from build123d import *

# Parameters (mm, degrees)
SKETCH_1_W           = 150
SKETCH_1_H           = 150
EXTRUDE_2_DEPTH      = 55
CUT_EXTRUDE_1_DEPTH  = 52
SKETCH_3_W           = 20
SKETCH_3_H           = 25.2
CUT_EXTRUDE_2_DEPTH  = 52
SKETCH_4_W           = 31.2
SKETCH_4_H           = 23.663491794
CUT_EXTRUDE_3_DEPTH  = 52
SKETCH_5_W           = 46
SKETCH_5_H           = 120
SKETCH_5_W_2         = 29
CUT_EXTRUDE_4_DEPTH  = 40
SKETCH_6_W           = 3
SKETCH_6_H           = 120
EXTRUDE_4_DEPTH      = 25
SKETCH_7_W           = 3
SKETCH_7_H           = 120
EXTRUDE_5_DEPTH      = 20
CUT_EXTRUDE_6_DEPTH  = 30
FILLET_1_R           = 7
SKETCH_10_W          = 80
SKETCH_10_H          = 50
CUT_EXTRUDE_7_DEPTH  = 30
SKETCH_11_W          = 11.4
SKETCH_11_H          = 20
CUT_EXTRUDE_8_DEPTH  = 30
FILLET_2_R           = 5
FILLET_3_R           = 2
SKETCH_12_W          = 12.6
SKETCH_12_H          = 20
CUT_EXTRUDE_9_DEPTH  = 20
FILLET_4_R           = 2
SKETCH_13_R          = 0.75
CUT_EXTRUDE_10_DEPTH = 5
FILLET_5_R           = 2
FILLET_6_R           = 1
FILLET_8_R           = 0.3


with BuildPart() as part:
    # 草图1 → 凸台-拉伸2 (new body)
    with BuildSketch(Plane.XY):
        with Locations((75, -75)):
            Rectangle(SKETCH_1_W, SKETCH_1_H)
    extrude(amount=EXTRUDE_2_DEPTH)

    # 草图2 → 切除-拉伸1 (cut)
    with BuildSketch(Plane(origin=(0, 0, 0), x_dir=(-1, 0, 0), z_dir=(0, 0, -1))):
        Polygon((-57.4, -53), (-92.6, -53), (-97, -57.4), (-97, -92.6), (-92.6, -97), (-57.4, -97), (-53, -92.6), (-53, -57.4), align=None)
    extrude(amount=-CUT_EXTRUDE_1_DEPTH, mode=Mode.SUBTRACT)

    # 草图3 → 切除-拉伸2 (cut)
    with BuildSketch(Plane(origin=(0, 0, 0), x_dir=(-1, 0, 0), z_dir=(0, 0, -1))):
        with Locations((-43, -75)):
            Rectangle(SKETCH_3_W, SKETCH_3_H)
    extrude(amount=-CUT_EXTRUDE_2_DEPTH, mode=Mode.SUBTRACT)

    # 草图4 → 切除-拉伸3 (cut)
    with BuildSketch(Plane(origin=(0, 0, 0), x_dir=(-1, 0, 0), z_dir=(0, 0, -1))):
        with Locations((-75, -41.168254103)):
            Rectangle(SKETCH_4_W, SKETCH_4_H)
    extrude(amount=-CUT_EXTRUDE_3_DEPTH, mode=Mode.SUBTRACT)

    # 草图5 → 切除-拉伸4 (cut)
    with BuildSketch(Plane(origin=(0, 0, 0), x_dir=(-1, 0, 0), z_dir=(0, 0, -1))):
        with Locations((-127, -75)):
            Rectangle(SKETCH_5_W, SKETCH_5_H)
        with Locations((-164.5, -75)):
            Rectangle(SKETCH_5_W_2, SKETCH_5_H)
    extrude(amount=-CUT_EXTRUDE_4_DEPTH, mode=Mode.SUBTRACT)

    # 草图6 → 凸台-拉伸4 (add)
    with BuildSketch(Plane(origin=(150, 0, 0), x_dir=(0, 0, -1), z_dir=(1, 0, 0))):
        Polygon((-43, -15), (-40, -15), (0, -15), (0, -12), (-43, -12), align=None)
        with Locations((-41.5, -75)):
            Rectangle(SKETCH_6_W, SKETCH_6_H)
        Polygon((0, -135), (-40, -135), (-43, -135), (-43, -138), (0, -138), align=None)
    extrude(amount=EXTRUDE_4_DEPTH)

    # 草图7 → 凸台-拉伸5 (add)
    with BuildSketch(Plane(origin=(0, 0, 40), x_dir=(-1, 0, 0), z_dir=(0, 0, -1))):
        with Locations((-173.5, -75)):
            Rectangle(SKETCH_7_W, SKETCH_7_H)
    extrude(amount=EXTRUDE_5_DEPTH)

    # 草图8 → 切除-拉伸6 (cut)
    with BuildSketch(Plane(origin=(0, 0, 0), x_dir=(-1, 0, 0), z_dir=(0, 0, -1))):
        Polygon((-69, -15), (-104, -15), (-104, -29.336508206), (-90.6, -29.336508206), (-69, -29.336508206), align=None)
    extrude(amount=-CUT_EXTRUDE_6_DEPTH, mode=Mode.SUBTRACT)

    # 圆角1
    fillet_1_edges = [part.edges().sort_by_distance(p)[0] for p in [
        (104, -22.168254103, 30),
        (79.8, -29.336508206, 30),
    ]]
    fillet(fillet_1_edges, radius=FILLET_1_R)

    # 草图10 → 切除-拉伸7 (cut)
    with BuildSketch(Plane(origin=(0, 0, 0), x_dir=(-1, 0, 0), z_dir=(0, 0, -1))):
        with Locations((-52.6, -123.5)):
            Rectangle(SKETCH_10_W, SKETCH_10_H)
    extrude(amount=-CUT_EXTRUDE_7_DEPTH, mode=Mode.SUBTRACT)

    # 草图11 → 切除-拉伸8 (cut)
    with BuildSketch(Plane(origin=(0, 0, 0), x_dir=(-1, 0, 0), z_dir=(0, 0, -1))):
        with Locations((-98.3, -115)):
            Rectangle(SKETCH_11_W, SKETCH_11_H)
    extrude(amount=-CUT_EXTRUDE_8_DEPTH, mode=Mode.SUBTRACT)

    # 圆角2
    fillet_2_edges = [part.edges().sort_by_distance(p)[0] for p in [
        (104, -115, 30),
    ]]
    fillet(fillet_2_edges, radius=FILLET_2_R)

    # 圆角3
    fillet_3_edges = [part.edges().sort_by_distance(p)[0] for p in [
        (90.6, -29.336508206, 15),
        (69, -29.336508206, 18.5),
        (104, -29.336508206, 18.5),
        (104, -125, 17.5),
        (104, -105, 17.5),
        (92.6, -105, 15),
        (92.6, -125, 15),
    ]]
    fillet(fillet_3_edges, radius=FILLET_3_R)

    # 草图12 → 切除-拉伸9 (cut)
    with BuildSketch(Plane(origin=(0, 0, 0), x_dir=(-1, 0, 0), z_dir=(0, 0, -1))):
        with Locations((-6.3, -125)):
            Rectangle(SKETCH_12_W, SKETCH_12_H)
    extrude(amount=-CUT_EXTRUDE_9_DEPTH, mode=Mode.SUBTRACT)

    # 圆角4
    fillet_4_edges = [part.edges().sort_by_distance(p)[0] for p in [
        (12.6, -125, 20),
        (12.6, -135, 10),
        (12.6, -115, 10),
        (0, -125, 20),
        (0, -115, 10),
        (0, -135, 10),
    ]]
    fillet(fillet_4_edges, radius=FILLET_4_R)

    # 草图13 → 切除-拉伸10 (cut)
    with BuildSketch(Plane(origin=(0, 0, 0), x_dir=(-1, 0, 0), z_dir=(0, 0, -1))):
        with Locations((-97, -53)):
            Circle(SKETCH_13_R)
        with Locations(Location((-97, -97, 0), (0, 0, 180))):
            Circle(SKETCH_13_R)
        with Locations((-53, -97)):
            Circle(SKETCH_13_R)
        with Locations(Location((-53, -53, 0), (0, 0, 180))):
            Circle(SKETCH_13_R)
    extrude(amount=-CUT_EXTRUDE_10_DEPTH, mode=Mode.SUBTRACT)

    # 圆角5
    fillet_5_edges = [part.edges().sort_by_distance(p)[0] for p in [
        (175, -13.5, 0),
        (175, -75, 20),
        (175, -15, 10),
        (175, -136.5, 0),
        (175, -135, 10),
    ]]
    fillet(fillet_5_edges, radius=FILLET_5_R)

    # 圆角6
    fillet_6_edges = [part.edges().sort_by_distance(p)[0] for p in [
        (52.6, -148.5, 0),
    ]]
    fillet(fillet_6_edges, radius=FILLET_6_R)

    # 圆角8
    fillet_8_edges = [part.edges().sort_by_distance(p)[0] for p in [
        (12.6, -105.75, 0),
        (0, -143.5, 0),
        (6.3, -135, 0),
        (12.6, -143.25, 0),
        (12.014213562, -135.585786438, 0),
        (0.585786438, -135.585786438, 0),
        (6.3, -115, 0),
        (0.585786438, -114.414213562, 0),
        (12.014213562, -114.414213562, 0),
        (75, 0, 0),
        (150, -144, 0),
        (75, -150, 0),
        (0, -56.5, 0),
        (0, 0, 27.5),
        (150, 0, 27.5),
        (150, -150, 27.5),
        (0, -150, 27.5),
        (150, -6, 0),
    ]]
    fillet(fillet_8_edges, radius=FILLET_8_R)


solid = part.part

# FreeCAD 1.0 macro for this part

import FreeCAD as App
import Part
import Sketcher
from FreeCAD import Vector


def edges_at(feature, points):
    """Names of the edges that pass closest to the given points."""
    edges = feature.Shape.Edges
    near = lambda p: min(range(len(edges)), key=lambda i: edges[i].distToShape(Part.Vertex(*p))[0])
    return sorted({f"Edge{near(p) + 1}" for p in points})

doc = App.newDocument("Part")
body = doc.addObject("PartDesign::Body", "Body")

# Sketch on XY plane
sketch1 = doc.addObject("Sketcher::SketchObject", "Sketch")
body.addObject(sketch1)
sketch1.AttachmentSupport = (doc.XY_Plane, [""])
sketch1.MapMode = "FlatFace"
sketch1.addGeometry(Part.LineSegment(Vector(0, 0, 0), Vector(0, -150, 0)), False)
sketch1.addGeometry(Part.LineSegment(Vector(0, -150, 0), Vector(150, -150, 0)), False)
sketch1.addGeometry(Part.LineSegment(Vector(150, -150, 0), Vector(150, 0, 0)), False)
sketch1.addGeometry(Part.LineSegment(Vector(150, 0, 0), Vector(0, 0, 0)), False)
sketch1.addConstraint(Sketcher.Constraint("Coincident", 0, 2, 1, 1))
sketch1.addConstraint(Sketcher.Constraint("Coincident", 1, 2, 2, 1))
sketch1.addConstraint(Sketcher.Constraint("Coincident", 2, 2, 3, 1))
sketch1.addConstraint(Sketcher.Constraint("Coincident", 3, 2, 0, 1))
sketch1.addConstraint(Sketcher.Constraint("Vertical", 0))
sketch1.addConstraint(Sketcher.Constraint("Horizontal", 1))
sketch1.addConstraint(Sketcher.Constraint("Vertical", 2))
sketch1.addConstraint(Sketcher.Constraint("Horizontal", 3))
sketch1.addConstraint(Sketcher.Constraint("Coincident", 3, 2, -1, 1))
sketch1.addConstraint(Sketcher.Constraint("Equal", 3, 0))
sketch1.addConstraint(Sketcher.Constraint("DistanceX", 1, 1, 1, 2, 150.0))
pad1 = doc.addObject("PartDesign::Pad", "Pad")
body.addObject(pad1)
pad1.Profile = sketch1
pad1.Length = 55

# Sketch on XY plane
sketch2 = doc.addObject("Sketcher::SketchObject", "Sketch001")
body.addObject(sketch2)
sketch2.AttachmentSupport = (doc.XY_Plane, [""])
sketch2.MapMode = "FlatFace"
sketch2.addGeometry(Part.LineSegment(Vector(57, -53, 0), Vector(93, -53, 0)), False)
sketch2.addGeometry(Part.LineSegment(Vector(93, -53, 0), Vector(97, -57, 0)), False)
sketch2.addGeometry(Part.LineSegment(Vector(97, -57, 0), Vector(97, -93, 0)), False)
sketch2.addGeometry(Part.LineSegment(Vector(97, -93, 0), Vector(93, -97, 0)), False)
sketch2.addGeometry(Part.LineSegment(Vector(93, -97, 0), Vector(57, -97, 0)), False)
sketch2.addGeometry(Part.LineSegment(Vector(57, -97, 0), Vector(53, -93, 0)), False)
sketch2.addGeometry(Part.LineSegment(Vector(53, -93, 0), Vector(53, -57, 0)), False)
sketch2.addGeometry(Part.LineSegment(Vector(53, -57, 0), Vector(57, -53, 0)), False)
sketch2.addConstraint(Sketcher.Constraint("Coincident", 0, 2, 1, 1))
sketch2.addConstraint(Sketcher.Constraint("Coincident", 1, 2, 2, 1))
sketch2.addConstraint(Sketcher.Constraint("Coincident", 2, 2, 3, 1))
sketch2.addConstraint(Sketcher.Constraint("Coincident", 3, 2, 4, 1))
sketch2.addConstraint(Sketcher.Constraint("Coincident", 4, 2, 5, 1))
sketch2.addConstraint(Sketcher.Constraint("Coincident", 5, 2, 6, 1))
sketch2.addConstraint(Sketcher.Constraint("Coincident", 6, 2, 7, 1))
sketch2.addConstraint(Sketcher.Constraint("Coincident", 7, 2, 0, 1))
sketch2.addConstraint(Sketcher.Constraint("Horizontal", 0))
sketch2.addConstraint(Sketcher.Constraint("Vertical", 2))
sketch2.addConstraint(Sketcher.Constraint("Horizontal", 4))
sketch2.addConstraint(Sketcher.Constraint("Vertical", 6))
sketch2.addConstraint(Sketcher.Constraint("Perpendicular", 1, 3))
sketch2.addConstraint(Sketcher.Constraint("Perpendicular", 3, 5))
sketch2.addConstraint(Sketcher.Constraint("Perpendicular", 5, 7))
sketch2.addConstraint(Sketcher.Constraint("Horizontal", 2, 2, 5, 2))
sketch2.addConstraint(Sketcher.Constraint("Horizontal", 1, 2, 6, 2))
sketch2.addConstraint(Sketcher.Constraint("Vertical", 0, 2, 3, 2))
sketch2.addConstraint(Sketcher.Constraint("Vertical", 4, 2, 7, 2))
sketch2.addConstraint(Sketcher.Constraint("Equal", 4, 2))
sketch2.addConstraint(Sketcher.Constraint("DistanceX", 0, 1, 0, 2, 35.2))
sketch2.addConstraint(Sketcher.Constraint("DistanceY", 0, 2, -1, 1, 53.0))
sketch2.addConstraint(Sketcher.Constraint("DistanceX", -1, 1, 1, 2, 97.0))
sketch2.addConstraint(Sketcher.Constraint("DistanceY", 3, 2, -1, 1, 97.0))
pocket1 = doc.addObject("PartDesign::Pocket", "Pocket")
body.addObject(pocket1)
pocket1.Profile = sketch2
pocket1.Length = 52
pocket1.Reversed = True

# Sketch on XY plane
sketch3 = doc.addObject("Sketcher::SketchObject", "Sketch002")
body.addObject(sketch3)
sketch3.AttachmentSupport = (doc.XY_Plane, [""])
sketch3.MapMode = "FlatFace"
sketch3.addGeometry(Part.LineSegment(Vector(53, -62, 0), Vector(53, -88, 0)), False)
sketch3.addGeometry(Part.LineSegment(Vector(53, -88, 0), Vector(33, -88, 0)), False)
sketch3.addGeometry(Part.LineSegment(Vector(33, -88, 0), Vector(33, -62, 0)), False)
sketch3.addGeometry(Part.LineSegment(Vector(33, -62, 0), Vector(53, -62, 0)), False)
sketch3.addConstraint(Sketcher.Constraint("Coincident", 0, 2, 1, 1))
sketch3.addConstraint(Sketcher.Constraint("Coincident", 1, 2, 2, 1))
sketch3.addConstraint(Sketcher.Constraint("Coincident", 2, 2, 3, 1))
sketch3.addConstraint(Sketcher.Constraint("Coincident", 3, 2, 0, 1))
sketch3.addConstraint(Sketcher.Constraint("Vertical", 0))
sketch3.addConstraint(Sketcher.Constraint("Horizontal", 1))
sketch3.addConstraint(Sketcher.Constraint("Vertical", 2))
sketch3.addConstraint(Sketcher.Constraint("Horizontal", 3))
sketch3.addConstraint(Sketcher.Constraint("DistanceX", 1, 2, 1, 1, 20.0))
sketch3.addConstraint(Sketcher.Constraint("DistanceY", 0, 2, 0, 1, 25.2))
sketch3.addConstraint(Sketcher.Constraint("DistanceX", -1, 1, 0, 2, 53.0))
sketch3.addConstraint(Sketcher.Constraint("DistanceY", 0, 2, -1, 1, 87.6))
pocket2 = doc.addObject("PartDesign::Pocket", "Pocket001")
body.addObject(pocket2)
pocket2.Profile = sketch3
pocket2.Length = 52
pocket2.Reversed = True

# Sketch on XY plane
sketch4 = doc.addObject("Sketcher::SketchObject", "Sketch003")
body.addObject(sketch4)
sketch4.AttachmentSupport = (doc.XY_Plane, [""])
sketch4.MapMode = "FlatFace"
sketch4.addGeometry(Part.LineSegment(Vector(91, -29, 0), Vector(91, -53, 0)), False)
sketch4.addGeometry(Part.LineSegment(Vector(91, -53, 0), Vector(59, -53, 0)), False)
sketch4.addGeometry(Part.LineSegment(Vector(59, -53, 0), Vector(59, -29, 0)), False)
sketch4.addGeometry(Part.LineSegment(Vector(59, -29, 0), Vector(91, -29, 0)), False)
sketch4.addConstraint(Sketcher.Constraint("Coincident", 0, 2, 1, 1))
sketch4.addConstraint(Sketcher.Constraint("Coincident", 1, 2, 2, 1))
sketch4.addConstraint(Sketcher.Constraint("Coincident", 2, 2, 3, 1))
sketch4.addConstraint(Sketcher.Constraint("Coincident", 3, 2, 0, 1))
sketch4.addConstraint(Sketcher.Constraint("Vertical", 0))
sketch4.addConstraint(Sketcher.Constraint("Horizontal", 1))
sketch4.addConstraint(Sketcher.Constraint("Vertical", 2))
sketch4.addConstraint(Sketcher.Constraint("Horizontal", 3))
sketch4.addConstraint(Sketcher.Constraint("DistanceX", 1, 2, 1, 1, 31.2))
sketch4.addConstraint(Sketcher.Constraint("DistanceY", 0, 2, -1, 1, 53.0))
sketch4.addConstraint(Sketcher.Constraint("DistanceX", -1, 1, 0, 2, 90.6))
sketch4.addConstraint(Sketcher.Constraint("DistanceY", 0, 2, 0, 1, 23.663492))
pocket3 = doc.addObject("PartDesign::Pocket", "Pocket002")
body.addObject(pocket3)
pocket3.Profile = sketch4
pocket3.Length = 52
pocket3.Reversed = True

# Sketch on XY plane
sketch5 = doc.addObject("Sketcher::SketchObject", "Sketch004")
body.addObject(sketch5)
sketch5.AttachmentSupport = (doc.XY_Plane, [""])
sketch5.MapMode = "FlatFace"
sketch5.addGeometry(Part.LineSegment(Vector(104, -135, 0), Vector(104, -15, 0)), False)
sketch5.addGeometry(Part.LineSegment(Vector(104, -15, 0), Vector(179, -15, 0)), False)
sketch5.addGeometry(Part.LineSegment(Vector(179, -15, 0), Vector(179, -135, 0)), False)
sketch5.addGeometry(Part.LineSegment(Vector(179, -135, 0), Vector(104, -135, 0)), False)
sketch5.addConstraint(Sketcher.Constraint("Coincident", 0, 2, 1, 1))
sketch5.addConstraint(Sketcher.Constraint("Coincident", 1, 2, 2, 1))
sketch5.addConstraint(Sketcher.Constraint("Coincident", 2, 2, 3, 1))
sketch5.addConstraint(Sketcher.Constraint("Coincident", 3, 2, 0, 1))
sketch5.addConstraint(Sketcher.Constraint("Vertical", 0))
sketch5.addConstraint(Sketcher.Constraint("Horizontal", 1))
sketch5.addConstraint(Sketcher.Constraint("Vertical", 2))
sketch5.addConstraint(Sketcher.Constraint("Horizontal", 3))
sketch5.addConstraint(Sketcher.Constraint("DistanceX", 1, 1, 1, 2, 75.0))
sketch5.addConstraint(Sketcher.Constraint("DistanceY", 0, 1, 0, 2, 120.0))
sketch5.addConstraint(Sketcher.Constraint("DistanceX", -1, 1, 0, 2, 104.0))
sketch5.addConstraint(Sketcher.Constraint("DistanceY", 0, 2, -1, 1, 15.0))
pocket4 = doc.addObject("PartDesign::Pocket", "Pocket003")
body.addObject(pocket4)
pocket4.Profile = sketch5
pocket4.Length = 40
pocket4.Reversed = True

# Sketch on YZ plane
sketch6 = doc.addObject("Sketcher::SketchObject", "Sketch005")
body.addObject(sketch6)
sketch6.AttachmentSupport = (doc.YZ_Plane, [""])
sketch6.MapMode = "FlatFace"
sketch6.AttachmentOffset = App.Placement(Vector(0, 0, 150), App.Rotation())
sketch6.addGeometry(Part.LineSegment(Vector(-15, 40, 0), Vector(-15, 0, 0)), False)
sketch6.addGeometry(Part.LineSegment(Vector(-15, 0, 0), Vector(-12, 0, 0)), False)
sketch6.addGeometry(Part.LineSegment(Vector(-12, 0, 0), Vector(-12, 43, 0)), False)
sketch6.addGeometry(Part.LineSegment(Vector(-12, 43, 0), Vector(-138, 43, 0)), False)
sketch6.addGeometry(Part.LineSegment(Vector(-138, 43, 0), Vector(-138, 0, 0)), False)
sketch6.addGeometry(Part.LineSegment(Vector(-138, 0, 0), Vector(-135, 0, 0)), False)
sketch6.addGeometry(Part.LineSegment(Vector(-135, 0, 0), Vector(-135, 40, 0)), False)
sketch6.addGeometry(Part.LineSegment(Vector(-135, 40, 0), Vector(-15, 40, 0)), False)
sketch6.addConstraint(Sketcher.Constraint("Coincident", 0, 2, 1, 1))
sketch6.addConstraint(Sketcher.Constraint("Coincident", 1, 2, 2, 1))
sketch6.addConstraint(Sketcher.Constraint("Coincident", 2, 2, 3, 1))
sketch6.addConstraint(Sketcher.Constraint("Coincident", 3, 2, 4, 1))
sketch6.addConstraint(Sketcher.Constraint("Coincident", 4, 2, 5, 1))
sketch6.addConstraint(Sketcher.Constraint("Coincident", 5, 2, 6, 1))
sketch6.addConstraint(Sketcher.Constraint("Coincident", 6, 2, 7, 1))
sketch6.addConstraint(Sketcher.Constraint("Coincident", 7, 2, 0, 1))
sketch6.addConstraint(Sketcher.Constraint("Vertical", 0))
sketch6.addConstraint(Sketcher.Constraint("Horizontal", 1))
sketch6.addConstraint(Sketcher.Constraint("Vertical", 2))
sketch6.addConstraint(Sketcher.Constraint("Horizontal", 3))
sketch6.addConstraint(Sketcher.Constraint("Vertical", 4))
sketch6.addConstraint(Sketcher.Constraint("Horizontal", 5))
sketch6.addConstraint(Sketcher.Constraint("Vertical", 6))
sketch6.addConstraint(Sketcher.Constraint("Horizontal", 7))
sketch6.addConstraint(Sketcher.Constraint("PointOnObject", 0, 2, -1))
sketch6.addConstraint(Sketcher.Constraint("PointOnObject", 4, 2, -1))
sketch6.addConstraint(Sketcher.Constraint("Equal", 1, 5))
sketch6.addConstraint(Sketcher.Constraint("DistanceX", 1, 1, 1, 2, 3.0))
sketch6.addConstraint(Sketcher.Constraint("DistanceX", 3, 2, 3, 1, 126.0))
sketch6.addConstraint(Sketcher.Constraint("DistanceY", 0, 2, 0, 1, 40.0))
sketch6.addConstraint(Sketcher.Constraint("DistanceY", 2, 1, 2, 2, 43.0))
sketch6.addConstraint(Sketcher.Constraint("DistanceX", 0, 2, -1, 1, 15.0))
pad2 = doc.addObject("PartDesign::Pad", "Pad001")
body.addObject(pad2)
pad2.Profile = sketch6
pad2.Length = 25

# Sketch on XY plane
sketch7 = doc.addObject("Sketcher::SketchObject", "Sketch006")
body.addObject(sketch7)
sketch7.AttachmentSupport = (doc.XY_Plane, [""])
sketch7.MapMode = "FlatFace"
sketch7.AttachmentOffset = App.Placement(Vector(0, 0, 40), App.Rotation())
sketch7.addGeometry(Part.LineSegment(Vector(175, -15, 0), Vector(175, -135, 0)), False)
sketch7.addGeometry(Part.LineSegment(Vector(175, -135, 0), Vector(172, -135, 0)), False)
sketch7.addGeometry(Part.LineSegment(Vector(172, -135, 0), Vector(172, -15, 0)), False)
sketch7.addGeometry(Part.LineSegment(Vector(172, -15, 0), Vector(175, -15, 0)), False)
sketch7.addConstraint(Sketcher.Constraint("Coincident", 0, 2, 1, 1))
sketch7.addConstraint(Sketcher.Constraint("Coincident", 1, 2, 2, 1))
sketch7.addConstraint(Sketcher.Constraint("Coincident", 2, 2, 3, 1))
sketch7.addConstraint(Sketcher.Constraint("Coincident", 3, 2, 0, 1))
sketch7.addConstraint(Sketcher.Constraint("Vertical", 0))
sketch7.addConstraint(Sketcher.Constraint("Horizontal", 1))
sketch7.addConstraint(Sketcher.Constraint("Vertical", 2))
sketch7.addConstraint(Sketcher.Constraint("Horizontal", 3))
sketch7.addConstraint(Sketcher.Constraint("DistanceX", 1, 2, 1, 1, 3.0))
sketch7.addConstraint(Sketcher.Constraint("DistanceY", 0, 2, 0, 1, 120.0))
sketch7.addConstraint(Sketcher.Constraint("DistanceX", -1, 1, 0, 2, 175.0))
sketch7.addConstraint(Sketcher.Constraint("DistanceY", 0, 2, -1, 1, 135.0))
pad3 = doc.addObject("PartDesign::Pad", "Pad002")
body.addObject(pad3)
pad3.Profile = sketch7
pad3.Length = 20
pad3.Reversed = True

# Sketch on XY plane
sketch8 = doc.addObject("Sketcher::SketchObject", "Sketch007")
body.addObject(sketch8)
sketch8.AttachmentSupport = (doc.XY_Plane, [""])
sketch8.MapMode = "FlatFace"
sketch8.addGeometry(Part.LineSegment(Vector(69, -15, 0), Vector(104, -15, 0)), False)
sketch8.addGeometry(Part.LineSegment(Vector(104, -15, 0), Vector(104, -29, 0)), False)
sketch8.addGeometry(Part.LineSegment(Vector(104, -29, 0), Vector(69, -29, 0)), False)
sketch8.addGeometry(Part.LineSegment(Vector(69, -29, 0), Vector(69, -15, 0)), False)
sketch8.addConstraint(Sketcher.Constraint("Coincident", 0, 2, 1, 1))
sketch8.addConstraint(Sketcher.Constraint("Coincident", 1, 2, 2, 1))
sketch8.addConstraint(Sketcher.Constraint("Coincident", 2, 2, 3, 1))
sketch8.addConstraint(Sketcher.Constraint("Coincident", 3, 2, 0, 1))
sketch8.addConstraint(Sketcher.Constraint("Horizontal", 0))
sketch8.addConstraint(Sketcher.Constraint("Vertical", 1))
sketch8.addConstraint(Sketcher.Constraint("Horizontal", 2))
sketch8.addConstraint(Sketcher.Constraint("Vertical", 3))
sketch8.addConstraint(Sketcher.Constraint("DistanceX", 0, 1, 0, 2, 35.0))
sketch8.addConstraint(Sketcher.Constraint("DistanceX", -1, 1, 0, 2, 104.0))
sketch8.addConstraint(Sketcher.Constraint("DistanceY", 0, 2, -1, 1, 15.0))
sketch8.addConstraint(Sketcher.Constraint("DistanceY", 1, 2, 1, 1, 14.336508))
pocket5 = doc.addObject("PartDesign::Pocket", "Pocket004")
body.addObject(pocket5)
pocket5.Profile = sketch8
pocket5.Length = 30
pocket5.Reversed = True
doc.recompute()

fillet = doc.addObject("PartDesign::Fillet", "Fillet")
body.addObject(fillet)
fillet.Base = (pocket5, edges_at(pocket5, [(104, -22.168, 30), (79.8, -29.337, 30)]))
fillet.Radius = 7

# Sketch on XY plane
sketch9 = doc.addObject("Sketcher::SketchObject", "Sketch008")
body.addObject(sketch9)
sketch9.AttachmentSupport = (doc.XY_Plane, [""])
sketch9.MapMode = "FlatFace"
sketch9.addGeometry(Part.LineSegment(Vector(93, -98, 0), Vector(93, -148, 0)), False)
sketch9.addGeometry(Part.LineSegment(Vector(93, -148, 0), Vector(13, -148, 0)), False)
sketch9.addGeometry(Part.LineSegment(Vector(13, -148, 0), Vector(13, -98, 0)), False)
sketch9.addGeometry(Part.LineSegment(Vector(13, -98, 0), Vector(93, -98, 0)), False)
sketch9.addConstraint(Sketcher.Constraint("Coincident", 0, 2, 1, 1))
sketch9.addConstraint(Sketcher.Constraint("Coincident", 1, 2, 2, 1))
sketch9.addConstraint(Sketcher.Constraint("Coincident", 2, 2, 3, 1))
sketch9.addConstraint(Sketcher.Constraint("Coincident", 3, 2, 0, 1))
sketch9.addConstraint(Sketcher.Constraint("Vertical", 0))
sketch9.addConstraint(Sketcher.Constraint("Horizontal", 1))
sketch9.addConstraint(Sketcher.Constraint("Vertical", 2))
sketch9.addConstraint(Sketcher.Constraint("Horizontal", 3))
sketch9.addConstraint(Sketcher.Constraint("DistanceX", 1, 2, 1, 1, 80.0))
sketch9.addConstraint(Sketcher.Constraint("DistanceY", 0, 2, 0, 1, 50.0))
sketch9.addConstraint(Sketcher.Constraint("DistanceX", -1, 1, 0, 2, 92.6))
sketch9.addConstraint(Sketcher.Constraint("DistanceY", 0, 2, -1, 1, 148.5))
pocket6 = doc.addObject("PartDesign::Pocket", "Pocket005")
body.addObject(pocket6)
pocket6.Profile = sketch9
pocket6.Length = 30
pocket6.Reversed = True

# Sketch on XY plane
sketch10 = doc.addObject("Sketcher::SketchObject", "Sketch009")
body.addObject(sketch10)
sketch10.AttachmentSupport = (doc.XY_Plane, [""])
sketch10.MapMode = "FlatFace"
sketch10.addGeometry(Part.LineSegment(Vector(104, -105, 0), Vector(104, -125, 0)), False)
sketch10.addGeometry(Part.LineSegment(Vector(104, -125, 0), Vector(93, -125, 0)), False)
sketch10.addGeometry(Part.LineSegment(Vector(93, -125, 0), Vector(93, -105, 0)), False)
sketch10.addGeometry(Part.LineSegment(Vector(93, -105, 0), Vector(104, -105, 0)), False)
sketch10.addConstraint(Sketcher.Constraint("Coincident", 0, 2, 1, 1))
sketch10.addConstraint(Sketcher.Constraint("Coincident", 1, 2, 2, 1))
sketch10.addConstraint(Sketcher.Constraint("Coincident", 2, 2, 3, 1))
sketch10.addConstraint(Sketcher.Constraint("Coincident", 3, 2, 0, 1))
sketch10.addConstraint(Sketcher.Constraint("Vertical", 0))
sketch10.addConstraint(Sketcher.Constraint("Horizontal", 1))
sketch10.addConstraint(Sketcher.Constraint("Vertical", 2))
sketch10.addConstraint(Sketcher.Constraint("Horizontal", 3))
sketch10.addConstraint(Sketcher.Constraint("DistanceY", 0, 2, 0, 1, 20.0))
sketch10.addConstraint(Sketcher.Constraint("DistanceX", 1, 2, 1, 1, 11.4))
sketch10.addConstraint(Sketcher.Constraint("DistanceX", -1, 1, 0, 2, 104.0))
sketch10.addConstraint(Sketcher.Constraint("DistanceY", 0, 2, -1, 1, 125.0))
pocket7 = doc.addObject("PartDesign::Pocket", "Pocket006")
body.addObject(pocket7)
pocket7.Profile = sketch10
pocket7.Length = 30
pocket7.Reversed = True
doc.recompute()

fillet2 = doc.addObject("PartDesign::Fillet", "Fillet001")
body.addObject(fillet2)
fillet2.Base = (pocket7, edges_at(pocket7, [(104, -115, 30)]))
fillet2.Radius = 5
doc.recompute()

fillet3 = doc.addObject("PartDesign::Fillet", "Fillet002")
body.addObject(fillet3)
fillet3.Base = (fillet2, edges_at(fillet2, [
    (90.6, -29.337, 15),
    (69, -29.337, 18.5),
    (104, -29.337, 18.5),
    (104, -125, 17.5),
    (104, -105, 17.5),
    (92.6, -105, 15),
    (92.6, -125, 15),
]))
fillet3.Radius = 2

# Sketch on XY plane
sketch11 = doc.addObject("Sketcher::SketchObject", "Sketch010")
body.addObject(sketch11)
sketch11.AttachmentSupport = (doc.XY_Plane, [""])
sketch11.MapMode = "FlatFace"
sketch11.addGeometry(Part.LineSegment(Vector(13, -115, 0), Vector(13, -135, 0)), False)
sketch11.addGeometry(Part.LineSegment(Vector(13, -135, 0), Vector(0, -135, 0)), False)
sketch11.addGeometry(Part.LineSegment(Vector(0, -135, 0), Vector(0, -115, 0)), False)
sketch11.addGeometry(Part.LineSegment(Vector(0, -115, 0), Vector(13, -115, 0)), False)
sketch11.addConstraint(Sketcher.Constraint("Coincident", 0, 2, 1, 1))
sketch11.addConstraint(Sketcher.Constraint("Coincident", 1, 2, 2, 1))
sketch11.addConstraint(Sketcher.Constraint("Coincident", 2, 2, 3, 1))
sketch11.addConstraint(Sketcher.Constraint("Coincident", 3, 2, 0, 1))
sketch11.addConstraint(Sketcher.Constraint("Vertical", 0))
sketch11.addConstraint(Sketcher.Constraint("Horizontal", 1))
sketch11.addConstraint(Sketcher.Constraint("Vertical", 2))
sketch11.addConstraint(Sketcher.Constraint("Horizontal", 3))
sketch11.addConstraint(Sketcher.Constraint("PointOnObject", 1, 2, -2))
sketch11.addConstraint(Sketcher.Constraint("DistanceY", 0, 2, 0, 1, 20.0))
sketch11.addConstraint(Sketcher.Constraint("DistanceX", 1, 2, 1, 1, 12.6))
sketch11.addConstraint(Sketcher.Constraint("DistanceY", 0, 2, -1, 1, 135.0))
pocket8 = doc.addObject("PartDesign::Pocket", "Pocket007")
body.addObject(pocket8)
pocket8.Profile = sketch11
pocket8.Length = 20
pocket8.Reversed = True
doc.recompute()

fillet4 = doc.addObject("PartDesign::Fillet", "Fillet003")
body.addObject(fillet4)
fillet4.Base = (pocket8, edges_at(pocket8, [
    (12.6, -125, 20),
    (12.6, -135, 10),
    (12.6, -115, 10),
    (0, -125, 20),
    (0, -115, 10),
    (0, -135, 10),
]))
fillet4.Radius = 2

# Sketch on XY plane
sketch12 = doc.addObject("Sketcher::SketchObject", "Sketch011")
body.addObject(sketch12)
sketch12.AttachmentSupport = (doc.XY_Plane, [""])
sketch12.MapMode = "FlatFace"
sketch12.addGeometry(Part.Circle(Vector(97, -53, 0), Vector(0, 0, 1), 0.8), False)
sketch12.addGeometry(Part.Circle(Vector(97, -97, 0), Vector(0, 0, 1), 0.8), False)
sketch12.addGeometry(Part.Circle(Vector(53, -97, 0), Vector(0, 0, 1), 0.8), False)
sketch12.addGeometry(Part.Circle(Vector(53, -53, 0), Vector(0, 0, 1), 0.8), False)
sketch12.addConstraint(Sketcher.Constraint("Equal", 0, 1))
sketch12.addConstraint(Sketcher.Constraint("Equal", 1, 2))
sketch12.addConstraint(Sketcher.Constraint("Equal", 2, 3))
sketch12.addConstraint(Sketcher.Constraint("Horizontal", 1, 3, 2, 3))
sketch12.addConstraint(Sketcher.Constraint("Horizontal", 0, 3, 3, 3))
sketch12.addConstraint(Sketcher.Constraint("Vertical", 0, 3, 1, 3))
sketch12.addConstraint(Sketcher.Constraint("Vertical", 2, 3, 3, 3))
sketch12.addConstraint(Sketcher.Constraint("Diameter", 0, 1.5))
sketch12.addConstraint(Sketcher.Constraint("DistanceX", -1, 1, 0, 3, 97.0))
sketch12.addConstraint(Sketcher.Constraint("DistanceY", 0, 3, -1, 1, 53.0))
sketch12.addConstraint(Sketcher.Constraint("DistanceY", 1, 3, -1, 1, 97.0))
sketch12.addConstraint(Sketcher.Constraint("DistanceX", -1, 1, 2, 3, 53.0))
pocket9 = doc.addObject("PartDesign::Pocket", "Pocket008")
body.addObject(pocket9)
pocket9.Profile = sketch12
pocket9.Length = 5
pocket9.Reversed = True
doc.recompute()

fillet5 = doc.addObject("PartDesign::Fillet", "Fillet004")
body.addObject(fillet5)
fillet5.Base = (pocket9, edges_at(pocket9, [
    (175, -13.5, 0),
    (175, -75, 20),
    (175, -15, 10),
    (175, -136.5, 0),
    (175, -135, 10),
]))
fillet5.Radius = 2
doc.recompute()

fillet6 = doc.addObject("PartDesign::Fillet", "Fillet005")
body.addObject(fillet6)
fillet6.Base = (fillet5, edges_at(fillet5, [(52.6, -148.5, 0)]))
fillet6.Radius = 1
doc.recompute()

fillet7 = doc.addObject("PartDesign::Fillet", "Fillet006")
body.addObject(fillet7)
fillet7.Base = (fillet6, edges_at(fillet6, [
    (12.6, -105.75, 0),
    (0, -143.5, 0),
    (6.3, -135, 0),
    (12.6, -143.25, 0),
    (12.014, -135.586, 0),
    (0.586, -135.586, 0),
    (6.3, -115, 0),
    (0.586, -114.414, 0),
    (12.014, -114.414, 0),
    (75, 0, 0),
    (150, -144, 0),
    (75, -150, 0),
    (0, -56.5, 0),
    (0, 0, 27.5),
    (150, 0, 27.5),
    (150, -150, 27.5),
    (0, -150, 27.5),
    (150, -6, 0),
]))
fillet7.Radius = 0.3

doc.recompute()
